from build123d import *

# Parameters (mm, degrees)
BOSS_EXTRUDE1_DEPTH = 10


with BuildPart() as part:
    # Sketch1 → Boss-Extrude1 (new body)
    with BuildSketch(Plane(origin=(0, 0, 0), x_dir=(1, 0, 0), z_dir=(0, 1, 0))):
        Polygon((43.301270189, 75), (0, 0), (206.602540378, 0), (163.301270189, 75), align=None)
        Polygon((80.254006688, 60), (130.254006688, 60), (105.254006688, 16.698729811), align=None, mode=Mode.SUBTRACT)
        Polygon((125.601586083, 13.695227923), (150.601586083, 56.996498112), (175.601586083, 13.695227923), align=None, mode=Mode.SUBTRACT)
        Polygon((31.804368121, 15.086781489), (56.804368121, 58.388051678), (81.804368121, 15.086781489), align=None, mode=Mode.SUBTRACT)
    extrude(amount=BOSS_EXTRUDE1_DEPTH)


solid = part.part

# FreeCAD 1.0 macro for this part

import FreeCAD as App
import Part
import Sketcher
from FreeCAD import Vector
Q = App.Units.Quantity


def add_polygon(sketch, points):
    """Adds a closed chain of lines whose ends are joined by coincident constraints."""
    first, n = sketch.GeometryCount, len(points)
    for a, b in zip(points, points[1:] + points[:1]):
        sketch.addGeometry(Part.LineSegment(App.Vector(*a, 0), App.Vector(*b, 0)), False)
    for i in range(n):
        sketch.addConstraint(Sketcher.Constraint("Coincident", first + i, 2, first + (i + 1) % n, 1))

doc = App.newDocument("Part")
body = doc.addObject("PartDesign::Body", "Body")

# Sketch on XZ plane
sketch1 = body.newObject("Sketcher::SketchObject", "Sketch")
sketch1.AttachmentSupport = (doc.getObject("XZ_Plane"), [""])
sketch1.MapMode = "FlatFace"
add_polygon(sketch1, [(43.30127, -75), (0, 0), (206.60254, 0), (163.30127, -75)])  # lines 0-3
add_polygon(sketch1, [(81.804368, -15.086781), (31.804368, -15.086781), (56.804368, -58.388052)])  # lines 4-6
add_polygon(sketch1, [(175.601586, -13.695228), (125.601586, -13.695228), (150.601586, -56.996498)])  # lines 7-9
add_polygon(sketch1, [(105.254007, -16.69873), (80.254007, -60), (130.254007, -60)])  # lines 10-12
sketch1.addConstraint(Sketcher.Constraint("Horizontal", 1))
sketch1.addConstraint(Sketcher.Constraint("Horizontal", 3))
sketch1.addConstraint(Sketcher.Constraint("Horizontal", 4))
sketch1.addConstraint(Sketcher.Constraint("Horizontal", 7))
sketch1.addConstraint(Sketcher.Constraint("Horizontal", 11))
sketch1.addConstraint(Sketcher.Constraint("Coincident", 0, 2, -1, 1))
sketch1.addConstraint(Sketcher.Constraint("Parallel", 0, 5))
sketch1.addConstraint(Sketcher.Constraint("Parallel", 2, 6))
sketch1.addConstraint(Sketcher.Constraint("Parallel", 5, 8))
sketch1.addConstraint(Sketcher.Constraint("Parallel", 6, 9))
sketch1.addConstraint(Sketcher.Constraint("Parallel", 9, 10))
sketch1.addConstraint(Sketcher.Constraint("Parallel", 8, 12))
sketch1.addConstraint(Sketcher.Constraint("Equal", 4, 7))
sketch1.addConstraint(Sketcher.Constraint("Equal", 7, 11))
sketch1.addConstraint(Sketcher.Constraint("Equal", 0, 2))
sketch1.addConstraint(Sketcher.Constraint("DistanceX", 3, 2, 3, 1, 120.0))
sketch1.addConstraint(Sketcher.Constraint("DistanceX", 4, 2, 4, 1, 50.0))
sketch1.addConstraint(Sketcher.Constraint("Angle", 0, Q("120 deg")))
sketch1.addConstraint(Sketcher.Constraint("DistanceY", 2, 2, -1, 1, 75.0))
sketch1.addConstraint(Sketcher.Constraint("DistanceY", 10, 2, -1, 1, 60.0))
sketch1.addConstraint(Sketcher.Constraint("DistanceY", 8, 2, -1, 1, 56.996498))
sketch1.addConstraint(Sketcher.Constraint("DistanceX", -1, 1, 4, 2, 31.804368))
sketch1.addConstraint(Sketcher.Constraint("DistanceY", 4, 2, -1, 1, 15.086781))
sketch1.addConstraint(Sketcher.Constraint("DistanceX", 5, 2, 10, 2, 23.449639))
sketch1.addConstraint(Sketcher.Constraint("DistanceX", 10, 2, 7, 2, 45.347579))
pad1 = body.newObject("PartDesign::Pad", "Pad")
pad1.Profile = sketch1
pad1.Length = 10
pad1.Reversed = True

doc.recompute()
